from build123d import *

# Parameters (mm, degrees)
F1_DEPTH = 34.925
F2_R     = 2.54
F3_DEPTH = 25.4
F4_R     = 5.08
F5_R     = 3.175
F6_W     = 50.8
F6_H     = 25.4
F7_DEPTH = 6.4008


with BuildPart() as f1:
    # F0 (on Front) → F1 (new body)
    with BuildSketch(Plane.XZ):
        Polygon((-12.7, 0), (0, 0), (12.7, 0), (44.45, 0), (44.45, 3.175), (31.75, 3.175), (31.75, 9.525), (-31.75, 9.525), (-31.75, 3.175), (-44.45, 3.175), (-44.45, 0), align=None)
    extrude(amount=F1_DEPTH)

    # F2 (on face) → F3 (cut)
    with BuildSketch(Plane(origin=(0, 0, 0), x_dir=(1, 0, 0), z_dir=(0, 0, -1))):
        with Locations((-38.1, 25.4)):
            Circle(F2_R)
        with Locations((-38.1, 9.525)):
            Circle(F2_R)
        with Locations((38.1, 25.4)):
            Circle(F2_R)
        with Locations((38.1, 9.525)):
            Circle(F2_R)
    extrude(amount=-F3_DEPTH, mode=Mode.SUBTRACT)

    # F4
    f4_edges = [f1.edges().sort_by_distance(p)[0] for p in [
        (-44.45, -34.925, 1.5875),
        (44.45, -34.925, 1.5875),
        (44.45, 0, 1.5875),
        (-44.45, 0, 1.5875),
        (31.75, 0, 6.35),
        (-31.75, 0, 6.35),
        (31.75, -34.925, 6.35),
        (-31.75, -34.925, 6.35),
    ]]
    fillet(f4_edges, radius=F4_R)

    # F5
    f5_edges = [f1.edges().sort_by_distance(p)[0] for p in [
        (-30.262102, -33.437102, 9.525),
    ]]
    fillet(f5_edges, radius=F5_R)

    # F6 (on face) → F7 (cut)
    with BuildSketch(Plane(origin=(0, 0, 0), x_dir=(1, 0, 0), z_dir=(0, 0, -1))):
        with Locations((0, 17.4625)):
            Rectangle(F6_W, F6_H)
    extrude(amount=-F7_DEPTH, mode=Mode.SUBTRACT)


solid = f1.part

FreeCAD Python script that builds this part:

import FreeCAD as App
import Part
import Sketcher
Q = App.Units.Quantity


def edges_at(feature, points):
    """Names of the edges that pass closest to the given points."""
    edges = feature.Shape.Edges
    near = lambda p: min(range(len(edges)), key=lambda i: edges[i].distToShape(Part.Vertex(*p))[0])
    return sorted({f"Edge{near(p) + 1}" for p in points})

doc = App.newDocument("Part")
params = doc.addObject("Spreadsheet::Sheet", "Params")
for row, (alias, value) in enumerate([
    ("sketch1_width", "0.5 in"),
    ("sketch1_width2", "2.5 in"),
    ("sketch1_height", "0.25 in"),
    ("sketch1_height2", "0.125 in"),
    ("pad1_length", "1.375 in"),
    ("sketch2_diameter", "0.2 in"),
    ("pocket1_length", "1 in"),
    ("fillet_radius", "0.2 in"),
    ("fillet2_radius", "0.125 in"),
    ("sketch3_width", "2 in"),
    ("sketch3_height", "1 in"),
    ("pocket2_length", "0.252 in"),
], start=1):
    params.set(f"A{row}", alias)
    params.set(f"B{row}", "=" + value)
    params.setAlias(f"B{row}", alias)

body = doc.addObject("PartDesign::Body", "Body")

# Sketch on XZ plane
sketch1 = body.newObject("Sketcher::SketchObject", "Sketch")
sketch1.AttachmentSupport = (doc.getObject("XZ_Plane"), [""])
sketch1.MapMode = "FlatFace"
sketch1.addGeometry([
    Part.LineSegment(App.Vector(44.5, 0, 0), App.Vector(44.5, 3.2, 0)),  # 0
    Part.LineSegment(App.Vector(44.5, 3.2, 0), App.Vector(31.8, 3.2, 0)),  # 1
    Part.LineSegment(App.Vector(31.8, 3.2, 0), App.Vector(31.8, 9.5, 0)),  # 2
    Part.LineSegment(App.Vector(31.8, 9.5, 0), App.Vector(-31.8, 9.5, 0)),  # 3
    Part.LineSegment(App.Vector(-31.8, 9.5, 0), App.Vector(-31.8, 3.2, 0)),  # 4
    Part.LineSegment(App.Vector(-31.8, 3.2, 0), App.Vector(-44.5, 3.2, 0)),  # 5
    Part.LineSegment(App.Vector(-44.5, 3.2, 0), App.Vector(-44.5, 0, 0)),  # 6
    Part.LineSegment(App.Vector(-44.5, 0, 0), App.Vector(44.5, 0, 0)),  # 7
], False)
sketch1.addConstraint([
    Sketcher.Constraint("Coincident", 0, 2, 1, 1),
    Sketcher.Constraint("Coincident", 1, 2, 2, 1),
    Sketcher.Constraint("Coincident", 2, 2, 3, 1),
    Sketcher.Constraint("Coincident", 3, 2, 4, 1),
    Sketcher.Constraint("Coincident", 4, 2, 5, 1),
    Sketcher.Constraint("Coincident", 5, 2, 6, 1),
    Sketcher.Constraint("Coincident", 6, 2, 7, 1),
    Sketcher.Constraint("Coincident", 7, 2, 0, 1),
    Sketcher.Constraint("Vertical", 0),
    Sketcher.Constraint("Horizontal", 1),
    Sketcher.Constraint("Vertical", 2),
    Sketcher.Constraint("Horizontal", 3),
    Sketcher.Constraint("Vertical", 4),
    Sketcher.Constraint("Horizontal", 5),
    Sketcher.Constraint("Vertical", 6),
    Sketcher.Constraint("Horizontal", 7),
    Sketcher.Constraint("Symmetric", 6, 2, 7, 2, -1, 1),
    Sketcher.Constraint("Symmetric", 1, 2, 4, 2, -2),
    Sketcher.Constraint("DistanceX", 1, 2, 1, 1, Q("0.5 in")),
    Sketcher.Constraint("DistanceX", 3, 2, 3, 1, Q("2.5 in")),
    Sketcher.Constraint("DistanceY", 2, 1, 2, 2, Q("0.25 in")),
    Sketcher.Constraint("DistanceY", 0, 1, 0, 2, Q("0.125 in")),
])
sketch1.setExpression("Constraints[18]", "Params.sketch1_width")
sketch1.setExpression("Constraints[19]", "Params.sketch1_width2")
sketch1.setExpression("Constraints[20]", "Params.sketch1_height")
sketch1.setExpression("Constraints[21]", "Params.sketch1_height2")
pad1 = body.newObject("PartDesign::Pad", "Pad")
pad1.Profile = sketch1
pad1.setExpression("Length", "Params.pad1_length")

# Sketch on XY plane
sketch2 = body.newObject("Sketcher::SketchObject", "Sketch001")
sketch2.AttachmentSupport = (doc.getObject("XY_Plane"), [""])
sketch2.MapMode = "FlatFace"
sketch2.addGeometry([
    Part.Circle(App.Vector(-38.1, -25.4, 0), App.Vector(0, 0, 1), 2.5),
    Part.Circle(App.Vector(-38.1, -9.5, 0), App.Vector(0, 0, 1), 2.5),
    Part.Circle(App.Vector(38.1, -25.4, 0), App.Vector(0, 0, 1), 2.5),
    Part.Circle(App.Vector(38.1, -9.5, 0), App.Vector(0, 0, 1), 2.5),
], False)
sketch2.addConstraint([
    Sketcher.Constraint("Equal", 0, 1),
    Sketcher.Constraint("Equal", 1, 2),
    Sketcher.Constraint("Equal", 2, 3),
    Sketcher.Constraint("Symmetric", 0, 3, 2, 3, -2),
    Sketcher.Constraint("Symmetric", 1, 3, 3, 3, -2),
    Sketcher.Constraint("Vertical", 0, 3, 1, 3),
    Sketcher.Constraint("Diameter", 0, Q("0.2 in")),
    Sketcher.Constraint("DistanceY", 0, 3, -1, 1, Q("1 in")),
    Sketcher.Constraint("DistanceX", 0, 3, 2, 3, Q("3 in")),
    Sketcher.Constraint("DistanceY", 1, 3, -1, 1, Q("0.375 in")),
])
sketch2.setExpression("Constraints[6]", "Params.sketch2_diameter")
pocket1 = body.newObject("PartDesign::Pocket", "Pocket")
pocket1.Profile = sketch2
pocket1.setExpression("Length", "Params.pocket1_length")
pocket1.Reversed = True
doc.recompute()

fillet = body.newObject("PartDesign::Fillet", "Fillet")
fillet.Base = (pocket1, edges_at(pocket1, [
    (-44.45, -34.925, 1.587),
    (44.45, -34.925, 1.587),
    (44.45, 0, 1.587),
    (-44.45, 0, 1.587),
    (31.75, 0, 6.35),
    (-31.75, 0, 6.35),
    (31.75, -34.925, 6.35),
    (-31.75, -34.925, 6.35),
]))
fillet.setExpression("Radius", "Params.fillet_radius")
doc.recompute()

fillet2 = body.newObject("PartDesign::Fillet", "Fillet001")
fillet2.Base = (fillet, edges_at(fillet, [(-30.262, -33.437, 9.525)]))
fillet2.setExpression("Radius", "Params.fillet2_radius")

# Sketch on XY plane
sketch3 = body.newObject("Sketcher::SketchObject", "Sketch002")
sketch3.AttachmentSupport = (doc.getObject("XY_Plane"), [""])
sketch3.MapMode = "FlatFace"
sketch3.addGeometry([
    Part.LineSegment(App.Vector(-25, -30, 0), App.Vector(-25, -5, 0)),
    Part.LineSegment(App.Vector(-25, -5, 0), App.Vector(25, -5, 0)),
    Part.LineSegment(App.Vector(25, -5, 0), App.Vector(25, -30, 0)),
    Part.LineSegment(App.Vector(25, -30, 0), App.Vector(-25, -30, 0)),
], False)
sketch3.addConstraint([
    Sketcher.Constraint("Coincident", 0, 2, 1, 1),
    Sketcher.Constraint("Coincident", 1, 2, 2, 1),
    Sketcher.Constraint("Coincident", 2, 2, 3, 1),
    Sketcher.Constraint("Coincident", 3, 2, 0, 1),
    Sketcher.Constraint("Vertical", 0),
    Sketcher.Constraint("Horizontal", 1),
    Sketcher.Constraint("Vertical", 2),
    Sketcher.Constraint("Horizontal", 3),
    Sketcher.Constraint("DistanceX", 1, 1, 1, 2, Q("2 in")),
    Sketcher.Constraint("DistanceY", 0, 1, 0, 2, Q("1 in")),
    Sketcher.Constraint("DistanceX", 0, 2, -1, 1, Q("1 in")),
    Sketcher.Constraint("DistanceY", 0, 2, -1, 1, Q("0.1875 in")),
])
sketch3.setExpression("Constraints[8]", "Params.sketch3_width")
sketch3.setExpression("Constraints[9]", "Params.sketch3_height")
pocket2 = body.newObject("PartDesign::Pocket", "Pocket001")
pocket2.Profile = sketch3
pocket2.setExpression("Length", "Params.pocket2_length")
pocket2.Reversed = True

doc.recompute()
